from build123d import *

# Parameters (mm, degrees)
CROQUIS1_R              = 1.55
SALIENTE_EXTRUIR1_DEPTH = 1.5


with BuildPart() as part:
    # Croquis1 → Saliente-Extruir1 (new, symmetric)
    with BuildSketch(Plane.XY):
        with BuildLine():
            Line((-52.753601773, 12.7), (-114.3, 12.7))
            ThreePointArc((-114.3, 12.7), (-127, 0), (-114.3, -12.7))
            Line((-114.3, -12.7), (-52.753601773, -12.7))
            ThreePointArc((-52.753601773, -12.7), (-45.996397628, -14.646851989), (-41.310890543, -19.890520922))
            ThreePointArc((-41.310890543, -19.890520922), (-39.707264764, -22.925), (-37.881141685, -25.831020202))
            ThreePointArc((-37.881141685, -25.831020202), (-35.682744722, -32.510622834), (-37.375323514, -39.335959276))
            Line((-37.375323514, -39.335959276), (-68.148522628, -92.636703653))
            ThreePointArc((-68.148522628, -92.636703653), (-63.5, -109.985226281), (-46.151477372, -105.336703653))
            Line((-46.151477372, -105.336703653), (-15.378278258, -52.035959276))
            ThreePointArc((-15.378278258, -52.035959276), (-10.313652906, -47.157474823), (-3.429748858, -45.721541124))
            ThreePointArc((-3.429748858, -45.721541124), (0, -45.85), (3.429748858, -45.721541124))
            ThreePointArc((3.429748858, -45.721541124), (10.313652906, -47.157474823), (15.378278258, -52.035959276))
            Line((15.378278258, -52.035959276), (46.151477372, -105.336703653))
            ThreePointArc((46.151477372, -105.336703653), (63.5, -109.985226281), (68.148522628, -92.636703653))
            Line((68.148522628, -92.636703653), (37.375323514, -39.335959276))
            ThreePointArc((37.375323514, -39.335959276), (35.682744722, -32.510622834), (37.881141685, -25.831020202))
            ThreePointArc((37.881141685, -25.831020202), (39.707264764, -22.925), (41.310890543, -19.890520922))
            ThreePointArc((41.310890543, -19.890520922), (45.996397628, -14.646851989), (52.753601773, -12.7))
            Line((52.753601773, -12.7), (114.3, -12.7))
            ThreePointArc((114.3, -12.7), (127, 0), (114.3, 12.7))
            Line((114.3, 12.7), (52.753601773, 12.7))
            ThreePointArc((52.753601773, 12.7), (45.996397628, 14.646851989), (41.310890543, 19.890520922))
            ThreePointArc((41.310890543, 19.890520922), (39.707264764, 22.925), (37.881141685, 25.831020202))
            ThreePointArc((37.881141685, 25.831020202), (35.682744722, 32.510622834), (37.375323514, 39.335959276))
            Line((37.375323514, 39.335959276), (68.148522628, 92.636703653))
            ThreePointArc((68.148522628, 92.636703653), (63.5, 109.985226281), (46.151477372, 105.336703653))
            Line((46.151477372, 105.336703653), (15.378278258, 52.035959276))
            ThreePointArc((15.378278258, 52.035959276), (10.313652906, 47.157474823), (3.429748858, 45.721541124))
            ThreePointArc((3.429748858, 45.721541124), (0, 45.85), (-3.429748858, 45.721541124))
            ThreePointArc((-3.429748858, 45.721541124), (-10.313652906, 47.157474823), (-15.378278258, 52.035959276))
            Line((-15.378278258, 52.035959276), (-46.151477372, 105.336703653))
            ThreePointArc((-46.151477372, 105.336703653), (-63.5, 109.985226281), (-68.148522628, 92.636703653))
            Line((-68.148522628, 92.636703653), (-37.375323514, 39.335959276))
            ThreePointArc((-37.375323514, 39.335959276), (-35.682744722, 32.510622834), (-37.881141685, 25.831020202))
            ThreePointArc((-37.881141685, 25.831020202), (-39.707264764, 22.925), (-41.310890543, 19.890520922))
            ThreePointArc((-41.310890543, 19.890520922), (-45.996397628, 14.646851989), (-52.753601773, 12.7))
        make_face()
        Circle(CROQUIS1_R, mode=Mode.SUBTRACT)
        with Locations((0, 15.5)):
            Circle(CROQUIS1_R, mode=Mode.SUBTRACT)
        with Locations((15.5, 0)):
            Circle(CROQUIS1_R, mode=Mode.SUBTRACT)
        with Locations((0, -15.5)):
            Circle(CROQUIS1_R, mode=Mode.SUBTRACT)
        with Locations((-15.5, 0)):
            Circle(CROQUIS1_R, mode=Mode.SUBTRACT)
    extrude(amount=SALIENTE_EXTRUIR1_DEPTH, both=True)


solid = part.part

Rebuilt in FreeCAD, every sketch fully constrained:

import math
import FreeCAD as App
import Part
import Sketcher

V = App.Vector
Q = App.Units.Quantity

doc = App.newDocument("Part")
params = doc.addObject("Spreadsheet::Sheet", "Params")
for row, (alias, value) in enumerate([
    ("sketch1_diameter", "3.1 mm"),
    ("sketch1_radius", "12.7 mm"),
    ("sketch1_radius2", "45.85 mm"),
    ("pad1_length", "3 mm"),
], start=1):
    params.set(f"A{row}", alias)
    params.set(f"B{row}", "=" + value)
    params.setAlias(f"B{row}", alias)

body = doc.addObject("PartDesign::Body", "Body")

sketch1 = body.newObject("Sketcher::SketchObject", "Sketch")
sketch1.AttachmentSupport = (doc.getObject("XY_Plane"), [""])
sketch1.MapMode = "FlatFace"
sketch1.addGeometry([
    Part.LineSegment(V(-52.8, 12.7, 0), V(-114.3, 12.7, 0)),
    Part.ArcOfCircle(Part.Circle(V(-114.3, 0, 0), V(0, 0, 1), 12.7), math.radians(90), math.radians(270)),
    Part.LineSegment(V(-114.3, -12.7, 0), V(-52.8, -12.7, 0)),
    Part.ArcOfCircle(Part.Circle(V(-52.8, -25.4, 0), V(0, 0, 1), 12.7), math.radians(26), math.radians(90)),
    Part.ArcOfCircle(Part.Circle(V(0, 0, 0), V(0, 0, 1), 45.8), math.radians(-154.29), math.radians(-145.71)),
    Part.ArcOfCircle(Part.Circle(V(-48.4, -33, 0), V(0, 0, 1), 12.7), math.radians(-30), math.radians(34)),
    Part.LineSegment(V(-37.4, -39.3, 0), V(-68.1, -92.6, 0)),
    Part.ArcOfCircle(Part.Circle(V(-57.1, -99, 0), V(0, 0, 1), 12.7), math.radians(150), math.radians(330)),
    Part.LineSegment(V(-46.2, -105.3, 0), V(-15.4, -52, 0)),
    Part.ArcOfCircle(Part.Circle(V(-4.4, -58.4, 0), V(0, 0, 1), 12.7), math.radians(86), math.radians(150)),
    Part.ArcOfCircle(Part.Circle(V(0, 0, 0), V(0, 0, 1), 45.8), math.radians(-94.29), math.radians(-85.71)),
    Part.ArcOfCircle(Part.Circle(V(4.4, -58.4, 0), V(0, 0, 1), 12.7), math.radians(30), math.radians(94)),
    Part.LineSegment(V(15.4, -52, 0), V(46.2, -105.3, 0)),
    Part.ArcOfCircle(Part.Circle(V(57.1, -99, 0), V(0, 0, 1), 12.7), math.radians(-150), math.radians(30)),
    Part.LineSegment(V(68.1, -92.6, 0), V(37.4, -39.3, 0)),
    Part.ArcOfCircle(Part.Circle(V(48.4, -33, 0), V(0, 0, 1), 12.7), math.radians(146), math.radians(210)),
    Part.ArcOfCircle(Part.Circle(V(0, 0, 0), V(0, 0, 1), 45.8), math.radians(-34.29), math.radians(-25.71)),
    Part.ArcOfCircle(Part.Circle(V(52.8, -25.4, 0), V(0, 0, 1), 12.7), math.radians(90), math.radians(154)),
    Part.LineSegment(V(52.8, -12.7, 0), V(114.3, -12.7, 0)),
    Part.ArcOfCircle(Part.Circle(V(114.3, 0, 0), V(0, 0, 1), 12.7), math.radians(-90), math.radians(90)),
    Part.LineSegment(V(114.3, 12.7, 0), V(52.8, 12.7, 0)),
    Part.ArcOfCircle(Part.Circle(V(52.8, 25.4, 0), V(0, 0, 1), 12.7), math.radians(-154), math.radians(-90)),
    Part.ArcOfCircle(Part.Circle(V(0, 0, 0), V(0, 0, 1), 45.8), math.radians(25.71), math.radians(34.29)),
    Part.ArcOfCircle(Part.Circle(V(48.4, 33, 0), V(0, 0, 1), 12.7), math.radians(150), math.radians(214)),
    Part.LineSegment(V(37.4, 39.3, 0), V(68.1, 92.6, 0)),
    Part.ArcOfCircle(Part.Circle(V(57.1, 99, 0), V(0, 0, 1), 12.7), math.radians(-30), math.radians(150)),
    Part.LineSegment(V(46.2, 105.3, 0), V(15.4, 52, 0)),
    Part.ArcOfCircle(Part.Circle(V(4.4, 58.4, 0), V(0, 0, 1), 12.7), math.radians(-94), math.radians(-30)),
    Part.ArcOfCircle(Part.Circle(V(0, 0, 0), V(0, 0, 1), 45.8), math.radians(85.71), math.radians(94.29)),
    Part.ArcOfCircle(Part.Circle(V(-4.4, 58.4, 0), V(0, 0, 1), 12.7), math.radians(-150), math.radians(-86)),
    Part.LineSegment(V(-15.4, 52, 0), V(-46.2, 105.3, 0)),
    Part.ArcOfCircle(Part.Circle(V(-57.1, 99, 0), V(0, 0, 1), 12.7), math.radians(30), math.radians(210)),
    Part.LineSegment(V(-68.1, 92.6, 0), V(-37.4, 39.3, 0)),
    Part.ArcOfCircle(Part.Circle(V(-48.4, 33, 0), V(0, 0, 1), 12.7), math.radians(-34), math.radians(30)),
    Part.ArcOfCircle(Part.Circle(V(0, 0, 0), V(0, 0, 1), 45.8), math.radians(145.71), math.radians(154.29)),
    Part.ArcOfCircle(Part.Circle(V(-52.8, 25.4, 0), V(0, 0, 1), 12.7), math.radians(-90), math.radians(-26)),
    Part.Circle(V(0, -15.5, 0), V(0, 0, 1), 1.6),
    Part.Circle(V(-15.5, 0, 0), V(0, 0, 1), 1.6),
    Part.Circle(V(0, 0, 0), V(0, 0, 1), 1.6),
    Part.Circle(V(15.5, 0, 0), V(0, 0, 1), 1.6),
    Part.Circle(V(0, 15.5, 0), V(0, 0, 1), 1.6),
], False)
sketch1.addConstraint([
    Sketcher.Constraint("Tangent", 0, 2, 1, 1),
    Sketcher.Constraint("Tangent", 1, 2, 2, 1),
    Sketcher.Constraint("Tangent", 2, 2, 3, 2),
    Sketcher.Constraint("Tangent", 3, 1, 4, 1),
    Sketcher.Constraint("Tangent", 4, 2, 5, 2),
    Sketcher.Constraint("Tangent", 5, 1, 6, 1),
    Sketcher.Constraint("Tangent", 6, 2, 7, 1),
    Sketcher.Constraint("Tangent", 7, 2, 8, 1),
    Sketcher.Constraint("Tangent", 8, 2, 9, 2),
    Sketcher.Constraint("Tangent", 9, 1, 10, 1),
    Sketcher.Constraint("Tangent", 10, 2, 11, 2),
    Sketcher.Constraint("Tangent", 11, 1, 12, 1),
    Sketcher.Constraint("Tangent", 12, 2, 13, 1),
    Sketcher.Constraint("Tangent", 13, 2, 14, 1),
    Sketcher.Constraint("Tangent", 14, 2, 15, 2),
    Sketcher.Constraint("Tangent", 15, 1, 16, 1),
    Sketcher.Constraint("Tangent", 16, 2, 17, 2),
    Sketcher.Constraint("Tangent", 17, 1, 18, 1),
    Sketcher.Constraint("Tangent", 18, 2, 19, 1),
    Sketcher.Constraint("Tangent", 19, 2, 20, 1),
    Sketcher.Constraint("Tangent", 20, 2, 21, 2),
    Sketcher.Constraint("Tangent", 21, 1, 22, 1),
    Sketcher.Constraint("Tangent", 22, 2, 23, 2),
    Sketcher.Constraint("Tangent", 23, 1, 24, 1),
    Sketcher.Constraint("Tangent", 24, 2, 25, 1),
    Sketcher.Constraint("Tangent", 25, 2, 26, 1),
    Sketcher.Constraint("Tangent", 26, 2, 27, 2),
    Sketcher.Constraint("Tangent", 27, 1, 28, 1),
    Sketcher.Constraint("Tangent", 28, 2, 29, 2),
    Sketcher.Constraint("Tangent", 29, 1, 30, 1),
    Sketcher.Constraint("Tangent", 30, 2, 31, 1),
    Sketcher.Constraint("Tangent", 31, 2, 32, 1),
    Sketcher.Constraint("Tangent", 32, 2, 33, 2),
    Sketcher.Constraint("Tangent", 33, 1, 34, 1),
    Sketcher.Constraint("Tangent", 34, 2, 35, 2),
    Sketcher.Constraint("Tangent", 35, 1, 0, 1),
    Sketcher.Constraint("Horizontal", 0),
    Sketcher.Constraint("Horizontal", 2),
    Sketcher.Constraint("Horizontal", 18),
    Sketcher.Constraint("Horizontal", 20),
    Sketcher.Constraint("Coincident", 4, 3, -1, 1),
    Sketcher.Constraint("Coincident", 10, 3, -1, 1),
    Sketcher.Constraint("Coincident", 16, 3, -1, 1),
    Sketcher.Constraint("Coincident", 22, 3, -1, 1),
    Sketcher.Constraint("Coincident", 28, 3, -1, 1),
    Sketcher.Constraint("Coincident", 34, 3, -1, 1),
    Sketcher.Constraint("Coincident", 38, 3, -1, 1),
    Sketcher.Constraint("Equal", 1, 3),
    Sketcher.Constraint("Equal", 3, 5),
    Sketcher.Constraint("Equal", 5, 7),
    Sketcher.Constraint("Equal", 7, 9),
    Sketcher.Constraint("Equal", 4, 10),
    Sketcher.Constraint("Equal", 9, 11),
    Sketcher.Constraint("Equal", 11, 13),
    Sketcher.Constraint("Equal", 13, 15),
    Sketcher.Constraint("Equal", 10, 16),
    Sketcher.Constraint("Equal", 15, 17),
    Sketcher.Constraint("Equal", 17, 19),
    Sketcher.Constraint("Equal", 19, 21),
    Sketcher.Constraint("Equal", 16, 22),
    Sketcher.Constraint("Equal", 21, 23),
    Sketcher.Constraint("Equal", 23, 25),
    Sketcher.Constraint("Equal", 25, 27),
    Sketcher.Constraint("Equal", 22, 28),
    Sketcher.Constraint("Equal", 27, 29),
    Sketcher.Constraint("Equal", 29, 31),
    Sketcher.Constraint("Equal", 31, 33),
    Sketcher.Constraint("Equal", 28, 34),
    Sketcher.Constraint("Equal", 33, 35),
    Sketcher.Constraint("Equal", 36, 37),
    Sketcher.Constraint("Equal", 37, 38),
    Sketcher.Constraint("Equal", 38, 39),
    Sketcher.Constraint("Equal", 39, 40),
    Sketcher.Constraint("Symmetric", 1, 3, 19, 3, -1, 1),
    Sketcher.Constraint("Symmetric", 7, 3, 25, 3, -1, 1),
    Sketcher.Constraint("Symmetric", 13, 3, 31, 3, -1, 1),
    Sketcher.Constraint("Symmetric", 37, 3, 39, 3, -1, 1),
    Sketcher.Constraint("Symmetric", 36, 3, 40, 3, -1, 1),
    Sketcher.Constraint("Symmetric", 7, 3, 13, 3, -2),
    Sketcher.Constraint("PointOnObject", 1, 3, -1),
    Sketcher.Constraint("PointOnObject", 36, 3, -2),
    Sketcher.Constraint("PointOnObject", 37, 3, -1),
    Sketcher.Constraint("Parallel", 6, 8),
    Sketcher.Constraint("Parallel", 12, 14),
    Sketcher.Constraint("Parallel", 8, 24),
    Sketcher.Constraint("Parallel", 24, 26),
    Sketcher.Constraint("Parallel", 14, 30),
    Sketcher.Constraint("Parallel", 30, 32),
    Sketcher.Constraint("Horizontal", 9, 3, 11, 3),
    Sketcher.Constraint("Equal", 6, 8),
    Sketcher.Constraint("Diameter", 36, 3.1),
    Sketcher.Constraint("Radius", 1, 12.7),
    Sketcher.Constraint("Angle", 6, Q("-120 deg")),
    Sketcher.Constraint("Radius", 4, 45.85),
    Sketcher.Constraint("DistanceX", 1, 3, -1, 1, 114.3),
    Sketcher.Constraint("DistanceY", 36, 3, -1, 1, 15.5),
    Sketcher.Constraint("DistanceX", 37, 3, -1, 1, 15.5),
    Sketcher.Constraint("DistanceX", 7, 3, -1, 1, 57.15),
])
sketch1.setExpression("Constraints[90]", "Params.sketch1_diameter")
sketch1.setExpression("Constraints[91]", "Params.sketch1_radius")
sketch1.setExpression("Constraints[93]", "Params.sketch1_radius2")
pad1 = body.newObject("PartDesign::Pad", "Pad")
pad1.Profile = sketch1
pad1.setExpression("Length", "Params.pad1_length")
pad1.Midplane = True

doc.recompute()
